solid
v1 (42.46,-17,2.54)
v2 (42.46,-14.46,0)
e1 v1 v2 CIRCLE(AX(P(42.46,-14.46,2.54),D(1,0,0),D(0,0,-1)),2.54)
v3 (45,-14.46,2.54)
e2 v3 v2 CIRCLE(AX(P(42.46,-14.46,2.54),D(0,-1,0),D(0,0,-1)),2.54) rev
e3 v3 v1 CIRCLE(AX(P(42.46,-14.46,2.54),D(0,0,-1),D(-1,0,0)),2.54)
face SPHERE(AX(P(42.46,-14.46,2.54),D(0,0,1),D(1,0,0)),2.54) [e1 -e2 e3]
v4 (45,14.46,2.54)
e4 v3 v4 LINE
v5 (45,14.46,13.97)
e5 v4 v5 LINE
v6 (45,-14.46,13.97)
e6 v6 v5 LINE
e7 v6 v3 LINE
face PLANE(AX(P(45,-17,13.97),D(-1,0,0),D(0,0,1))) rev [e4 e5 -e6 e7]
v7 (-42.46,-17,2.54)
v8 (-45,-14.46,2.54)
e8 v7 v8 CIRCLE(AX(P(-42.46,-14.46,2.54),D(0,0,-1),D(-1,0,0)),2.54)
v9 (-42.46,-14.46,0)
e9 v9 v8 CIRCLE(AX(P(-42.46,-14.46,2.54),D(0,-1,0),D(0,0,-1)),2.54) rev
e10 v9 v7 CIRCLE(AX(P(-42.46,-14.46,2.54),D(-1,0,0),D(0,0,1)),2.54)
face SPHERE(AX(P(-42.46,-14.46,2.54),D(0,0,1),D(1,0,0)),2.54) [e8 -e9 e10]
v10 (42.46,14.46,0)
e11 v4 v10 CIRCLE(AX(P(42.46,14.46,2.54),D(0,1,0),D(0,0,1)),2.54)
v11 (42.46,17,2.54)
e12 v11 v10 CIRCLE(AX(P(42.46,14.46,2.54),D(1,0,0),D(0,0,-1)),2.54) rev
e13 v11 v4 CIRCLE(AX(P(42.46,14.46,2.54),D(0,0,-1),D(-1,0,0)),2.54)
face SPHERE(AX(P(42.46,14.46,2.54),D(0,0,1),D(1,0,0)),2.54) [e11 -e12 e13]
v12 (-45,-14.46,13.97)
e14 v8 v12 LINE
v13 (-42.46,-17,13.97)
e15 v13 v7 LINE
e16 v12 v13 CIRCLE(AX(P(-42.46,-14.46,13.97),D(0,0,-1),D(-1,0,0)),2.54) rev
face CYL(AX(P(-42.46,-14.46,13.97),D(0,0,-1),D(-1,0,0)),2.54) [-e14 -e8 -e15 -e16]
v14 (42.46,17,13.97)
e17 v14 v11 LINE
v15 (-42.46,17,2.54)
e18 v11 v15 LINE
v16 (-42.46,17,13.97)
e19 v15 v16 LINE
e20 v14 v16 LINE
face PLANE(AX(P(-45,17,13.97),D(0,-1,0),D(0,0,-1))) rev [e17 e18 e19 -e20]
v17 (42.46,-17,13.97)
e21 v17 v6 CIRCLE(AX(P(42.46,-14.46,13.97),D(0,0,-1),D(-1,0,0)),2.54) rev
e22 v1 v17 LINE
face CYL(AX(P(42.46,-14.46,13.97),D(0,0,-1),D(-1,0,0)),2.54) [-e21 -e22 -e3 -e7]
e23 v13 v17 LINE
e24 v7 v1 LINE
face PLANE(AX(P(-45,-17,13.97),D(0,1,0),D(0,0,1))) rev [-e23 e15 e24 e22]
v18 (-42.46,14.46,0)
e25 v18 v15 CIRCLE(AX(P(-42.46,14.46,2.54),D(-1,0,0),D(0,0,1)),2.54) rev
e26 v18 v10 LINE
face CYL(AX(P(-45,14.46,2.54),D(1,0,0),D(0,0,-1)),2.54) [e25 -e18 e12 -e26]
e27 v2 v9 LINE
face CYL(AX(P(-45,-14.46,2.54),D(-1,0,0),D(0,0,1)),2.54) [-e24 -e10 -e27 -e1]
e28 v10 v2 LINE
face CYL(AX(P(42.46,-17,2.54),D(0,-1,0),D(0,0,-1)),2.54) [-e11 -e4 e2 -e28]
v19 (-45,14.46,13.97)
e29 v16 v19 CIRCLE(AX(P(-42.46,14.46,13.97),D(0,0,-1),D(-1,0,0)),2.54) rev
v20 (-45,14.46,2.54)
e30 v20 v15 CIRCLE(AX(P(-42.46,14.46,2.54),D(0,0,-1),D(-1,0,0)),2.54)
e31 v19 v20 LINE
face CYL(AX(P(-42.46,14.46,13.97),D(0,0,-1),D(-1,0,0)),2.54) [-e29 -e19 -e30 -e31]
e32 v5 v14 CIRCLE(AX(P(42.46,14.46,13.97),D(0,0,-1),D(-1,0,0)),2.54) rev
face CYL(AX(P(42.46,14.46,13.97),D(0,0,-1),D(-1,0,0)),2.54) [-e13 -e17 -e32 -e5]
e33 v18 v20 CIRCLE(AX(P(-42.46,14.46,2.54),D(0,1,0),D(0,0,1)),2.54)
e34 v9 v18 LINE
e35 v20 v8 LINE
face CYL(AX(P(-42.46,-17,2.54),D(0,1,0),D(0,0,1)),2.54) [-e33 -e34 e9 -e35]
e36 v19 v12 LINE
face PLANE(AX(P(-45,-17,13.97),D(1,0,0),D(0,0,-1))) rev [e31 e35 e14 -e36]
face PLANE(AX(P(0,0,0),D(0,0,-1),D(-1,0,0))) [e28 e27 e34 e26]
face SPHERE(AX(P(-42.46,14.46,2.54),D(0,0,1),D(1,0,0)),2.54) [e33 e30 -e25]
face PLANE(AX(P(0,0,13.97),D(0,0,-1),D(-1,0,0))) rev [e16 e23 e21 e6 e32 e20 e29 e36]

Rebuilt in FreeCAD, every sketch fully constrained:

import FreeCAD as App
import Part
import Sketcher

V = App.Vector


def edges_at(feature, points):
    """Names of the edges that pass closest to the given points."""
    edges = feature.Shape.Edges
    near = lambda p: min(range(len(edges)), key=lambda i: edges[i].distToShape(Part.Vertex(*p))[0])
    return sorted({f"Edge{near(p) + 1}" for p in points})

doc = App.newDocument("Part")
body = doc.addObject("PartDesign::Body", "Body")

# Sketch on XY plane
sketch1 = body.newObject("Sketcher::SketchObject", "Sketch")
sketch1.AttachmentSupport = (doc.getObject("XY_Plane"), [""])
sketch1.MapMode = "FlatFace"
sketch1.addGeometry(Part.LineSegment(V(-45, 17, 0), V(-45, -17, 0)), False)
sketch1.addGeometry(Part.LineSegment(V(-45, -17, 0), V(45, -17, 0)), False)
sketch1.addGeometry(Part.LineSegment(V(45, -17, 0), V(45, 17, 0)), False)
sketch1.addGeometry(Part.LineSegment(V(45, 17, 0), V(-45, 17, 0)), False)
sketch1.addConstraint(Sketcher.Constraint("Coincident", 0, 2, 1, 1))
sketch1.addConstraint(Sketcher.Constraint("Coincident", 1, 2, 2, 1))
sketch1.addConstraint(Sketcher.Constraint("Coincident", 2, 2, 3, 1))
sketch1.addConstraint(Sketcher.Constraint("Coincident", 3, 2, 0, 1))
sketch1.addConstraint(Sketcher.Constraint("Vertical", 0))
sketch1.addConstraint(Sketcher.Constraint("Horizontal", 1))
sketch1.addConstraint(Sketcher.Constraint("Vertical", 2))
sketch1.addConstraint(Sketcher.Constraint("Horizontal", 3))
sketch1.addConstraint(Sketcher.Constraint("Symmetric", 0, 2, 2, 2, -1, 1))
sketch1.addConstraint(Sketcher.Constraint("DistanceX", 1, 1, 1, 2, 90.0))
sketch1.addConstraint(Sketcher.Constraint("DistanceY", 0, 2, 0, 1, 34.0))
pad1 = body.newObject("PartDesign::Pad", "Pad")
pad1.Profile = sketch1
pad1.Length = 13.97
doc.recompute()

fillet = body.newObject("PartDesign::Fillet", "Fillet")
fillet.Base = (pad1, edges_at(pad1, [
    (0, -17, 0),
    (-45, 0, 0),
    (0, 17, 0),
    (45, 0, 0),
    (45, -17, 6.985),
    (-45, -17, 6.985),
    (-45, 17, 6.985),
    (45, 17, 6.985),
]))
fillet.Radius = 2.54

doc.recompute()
